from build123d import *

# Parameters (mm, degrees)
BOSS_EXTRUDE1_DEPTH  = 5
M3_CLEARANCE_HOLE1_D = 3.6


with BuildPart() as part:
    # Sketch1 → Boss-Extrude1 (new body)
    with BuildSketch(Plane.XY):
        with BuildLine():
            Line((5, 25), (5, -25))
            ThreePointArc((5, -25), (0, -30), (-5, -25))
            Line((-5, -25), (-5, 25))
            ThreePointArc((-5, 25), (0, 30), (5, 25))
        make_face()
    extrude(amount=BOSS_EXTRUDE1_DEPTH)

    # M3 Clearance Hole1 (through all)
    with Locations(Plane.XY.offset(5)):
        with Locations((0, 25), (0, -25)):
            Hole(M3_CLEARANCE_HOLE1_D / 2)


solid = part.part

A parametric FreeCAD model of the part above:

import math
import FreeCAD as App
import Part
import Sketcher
from FreeCAD import Vector
Q = App.Units.Quantity

doc = App.newDocument("Part")
body = doc.addObject("PartDesign::Body", "Body")

# Sketch on XY plane
sketch1 = body.newObject("Sketcher::SketchObject", "Sketch")
sketch1.AttachmentSupport = (doc.getObject("XY_Plane"), [""])
sketch1.MapMode = "FlatFace"
sketch1.addGeometry([
    Part.LineSegment(Vector(5, -25, 0), Vector(5, 25, 0)),
    Part.ArcOfCircle(Part.Circle(Vector(0, 25, 0), Vector(0, 0, 1), 5), math.radians(0), math.radians(180)),
    Part.LineSegment(Vector(-5, 25, 0), Vector(-5, -25, 0)),
    Part.ArcOfCircle(Part.Circle(Vector(0, -25, 0), Vector(0, 0, 1), 5), math.radians(180), math.radians(360)),
], False)
sketch1.addConstraint([
    Sketcher.Constraint("Tangent", 0, 2, 1, 1),
    Sketcher.Constraint("Tangent", 1, 2, 2, 1),
    Sketcher.Constraint("Tangent", 2, 2, 3, 1),
    Sketcher.Constraint("Tangent", 3, 2, 0, 1),
    Sketcher.Constraint("Vertical", 0),
    Sketcher.Constraint("Vertical", 2),
    Sketcher.Constraint("Symmetric", 1, 3, 3, 3, -1, 1),
    Sketcher.Constraint("Radius", 1, Q("5 mm")),
    Sketcher.Constraint("DistanceY", 0, 1, 0, 2, Q("50 mm")),
])
pad1 = body.newObject("PartDesign::Pad", "Pad")
pad1.Profile = sketch1
pad1.Length = 5

# Sketch on XY plane
sketch2 = body.newObject("Sketcher::SketchObject", "Sketch001")
sketch2.AttachmentSupport = (doc.getObject("XY_Plane"), [""])
sketch2.MapMode = "FlatFace"
sketch2.AttachmentOffset = App.Placement(Vector(0, 0, 5), App.Rotation())
sketch2.addGeometry([
    Part.Circle(Vector(0, 25, 0), Vector(0, 0, 1), 1.8),
    Part.Circle(Vector(0, -25, 0), Vector(0, 0, 1), 1.8),
], False)
sketch2.addConstraint([
    Sketcher.Constraint("Equal", 0, 1),
    Sketcher.Constraint("Symmetric", 0, 3, 1, 3, -1, 1),
    Sketcher.Constraint("PointOnObject", 0, 3, -2),
    Sketcher.Constraint("Diameter", 0, Q("3.6 mm")),
    Sketcher.Constraint("DistanceY", -1, 1, 0, 3, Q("25 mm")),
])
doc.recompute()
hole = body.newObject("PartDesign::Hole", "Hole")
hole.Profile = sketch2
hole.ThreadType = "None"
hole.Diameter = 3.6
hole.DepthType = "ThroughAll"

doc.recompute()
